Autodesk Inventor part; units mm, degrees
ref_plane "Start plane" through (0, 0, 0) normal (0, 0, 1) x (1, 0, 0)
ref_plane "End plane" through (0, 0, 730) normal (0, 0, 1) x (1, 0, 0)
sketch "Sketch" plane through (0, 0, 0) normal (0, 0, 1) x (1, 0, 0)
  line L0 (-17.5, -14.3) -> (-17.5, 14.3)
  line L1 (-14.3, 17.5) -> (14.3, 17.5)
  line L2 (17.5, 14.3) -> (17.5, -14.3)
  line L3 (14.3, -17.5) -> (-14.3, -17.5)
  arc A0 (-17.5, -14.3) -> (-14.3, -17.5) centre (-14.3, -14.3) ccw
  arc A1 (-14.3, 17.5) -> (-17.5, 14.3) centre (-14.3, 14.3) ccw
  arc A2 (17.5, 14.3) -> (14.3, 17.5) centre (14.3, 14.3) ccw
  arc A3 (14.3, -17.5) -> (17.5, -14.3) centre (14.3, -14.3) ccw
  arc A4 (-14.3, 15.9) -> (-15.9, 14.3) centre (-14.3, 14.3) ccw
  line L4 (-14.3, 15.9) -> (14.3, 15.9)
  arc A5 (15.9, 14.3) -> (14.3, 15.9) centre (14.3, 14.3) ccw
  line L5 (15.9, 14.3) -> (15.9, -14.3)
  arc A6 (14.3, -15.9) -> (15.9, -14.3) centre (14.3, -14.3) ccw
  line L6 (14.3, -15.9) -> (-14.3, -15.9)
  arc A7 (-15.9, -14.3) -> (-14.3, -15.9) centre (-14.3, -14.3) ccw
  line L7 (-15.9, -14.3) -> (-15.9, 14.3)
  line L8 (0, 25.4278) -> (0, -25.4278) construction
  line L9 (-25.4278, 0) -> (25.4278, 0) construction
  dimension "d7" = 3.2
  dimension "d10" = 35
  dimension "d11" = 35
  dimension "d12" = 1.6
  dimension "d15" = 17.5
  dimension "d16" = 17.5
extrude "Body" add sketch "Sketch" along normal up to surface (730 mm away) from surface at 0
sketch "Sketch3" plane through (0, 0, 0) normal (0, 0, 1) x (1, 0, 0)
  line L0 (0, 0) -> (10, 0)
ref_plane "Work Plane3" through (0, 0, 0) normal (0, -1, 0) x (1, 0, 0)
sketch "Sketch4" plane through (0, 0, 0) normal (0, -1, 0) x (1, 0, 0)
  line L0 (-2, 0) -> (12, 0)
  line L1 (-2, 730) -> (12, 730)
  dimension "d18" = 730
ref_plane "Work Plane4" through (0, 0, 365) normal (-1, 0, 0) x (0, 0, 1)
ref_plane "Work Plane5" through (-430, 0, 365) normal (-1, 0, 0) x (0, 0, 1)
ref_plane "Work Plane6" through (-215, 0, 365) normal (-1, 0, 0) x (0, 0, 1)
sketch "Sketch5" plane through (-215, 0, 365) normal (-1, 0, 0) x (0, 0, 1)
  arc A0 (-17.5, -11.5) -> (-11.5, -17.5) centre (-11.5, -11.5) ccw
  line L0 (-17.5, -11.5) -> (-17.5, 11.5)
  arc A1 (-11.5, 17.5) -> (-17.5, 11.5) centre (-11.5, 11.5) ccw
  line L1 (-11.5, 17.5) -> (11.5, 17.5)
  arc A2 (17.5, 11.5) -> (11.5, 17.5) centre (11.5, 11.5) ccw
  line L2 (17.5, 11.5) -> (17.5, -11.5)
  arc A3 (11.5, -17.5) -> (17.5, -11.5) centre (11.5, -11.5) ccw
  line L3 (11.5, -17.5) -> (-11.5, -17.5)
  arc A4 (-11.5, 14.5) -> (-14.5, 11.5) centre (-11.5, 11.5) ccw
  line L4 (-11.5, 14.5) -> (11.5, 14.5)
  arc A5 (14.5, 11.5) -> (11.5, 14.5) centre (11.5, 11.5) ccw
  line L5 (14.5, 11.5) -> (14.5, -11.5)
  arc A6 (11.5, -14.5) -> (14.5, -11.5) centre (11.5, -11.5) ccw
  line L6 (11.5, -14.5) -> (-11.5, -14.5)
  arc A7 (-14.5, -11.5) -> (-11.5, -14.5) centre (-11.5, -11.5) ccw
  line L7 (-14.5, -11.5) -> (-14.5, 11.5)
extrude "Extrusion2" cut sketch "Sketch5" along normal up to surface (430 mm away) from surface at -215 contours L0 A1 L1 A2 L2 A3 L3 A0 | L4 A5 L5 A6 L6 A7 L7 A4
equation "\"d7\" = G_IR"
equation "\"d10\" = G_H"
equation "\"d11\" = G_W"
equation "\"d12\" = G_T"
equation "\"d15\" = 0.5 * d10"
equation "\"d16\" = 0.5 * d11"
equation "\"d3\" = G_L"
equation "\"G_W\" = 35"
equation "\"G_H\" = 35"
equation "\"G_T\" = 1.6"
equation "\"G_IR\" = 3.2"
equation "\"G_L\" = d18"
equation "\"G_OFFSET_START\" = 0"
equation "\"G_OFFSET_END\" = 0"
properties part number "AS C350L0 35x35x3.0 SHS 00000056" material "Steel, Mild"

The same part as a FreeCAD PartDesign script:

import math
import FreeCAD as App
import Part
import Sketcher
Q = App.Units.Quantity

doc = App.newDocument("Part")
body = doc.addObject("PartDesign::Body", "Body")

sketch1 = doc.addObject("Sketcher::SketchObject", "Sketch")
body.addObject(sketch1)
sketch1.AttachmentSupport = (doc.XY_Plane, [""])
sketch1.MapMode = "FlatFace"
sketch1.addGeometry(Part.LineSegment(App.Vector(-17.5, 14.3, 0), App.Vector(-17.5, -14.3, 0)), False)
sketch1.addGeometry(Part.ArcOfCircle(Part.Circle(App.Vector(-14.3, -14.3, 0), App.Vector(0, 0, 1), 3.2), math.radians(180), math.radians(270)), False)
sketch1.addGeometry(Part.LineSegment(App.Vector(-14.3, -17.5, 0), App.Vector(14.3, -17.5, 0)), False)
sketch1.addGeometry(Part.ArcOfCircle(Part.Circle(App.Vector(14.3, -14.3, 0), App.Vector(0, 0, 1), 3.2), math.radians(-90), math.radians(0)), False)
sketch1.addGeometry(Part.LineSegment(App.Vector(17.5, -14.3, 0), App.Vector(17.5, 14.3, 0)), False)
sketch1.addGeometry(Part.ArcOfCircle(Part.Circle(App.Vector(14.3, 14.3, 0), App.Vector(0, 0, 1), 3.2), math.radians(0), math.radians(90)), False)
sketch1.addGeometry(Part.LineSegment(App.Vector(14.3, 17.5, 0), App.Vector(-14.3, 17.5, 0)), False)
sketch1.addGeometry(Part.ArcOfCircle(Part.Circle(App.Vector(-14.3, 14.3, 0), App.Vector(0, 0, 1), 3.2), math.radians(90), math.radians(180)), False)
sketch1.addGeometry(Part.ArcOfCircle(Part.Circle(App.Vector(-14.3, 14.3, 0), App.Vector(0, 0, 1), 1.6), math.radians(90), math.radians(180)), False)
sketch1.addGeometry(Part.LineSegment(App.Vector(-14.3, 15.9, 0), App.Vector(14.3, 15.9, 0)), False)
sketch1.addGeometry(Part.ArcOfCircle(Part.Circle(App.Vector(14.3, 14.3, 0), App.Vector(0, 0, 1), 1.6), math.radians(0), math.radians(90)), False)
sketch1.addGeometry(Part.LineSegment(App.Vector(15.9, 14.3, 0), App.Vector(15.9, -14.3, 0)), False)
sketch1.addGeometry(Part.ArcOfCircle(Part.Circle(App.Vector(14.3, -14.3, 0), App.Vector(0, 0, 1), 1.6), math.radians(-90), math.radians(0)), False)
sketch1.addGeometry(Part.LineSegment(App.Vector(14.3, -15.9, 0), App.Vector(-14.3, -15.9, 0)), False)
sketch1.addGeometry(Part.ArcOfCircle(Part.Circle(App.Vector(-14.3, -14.3, 0), App.Vector(0, 0, 1), 1.6), math.radians(180), math.radians(270)), False)
sketch1.addGeometry(Part.LineSegment(App.Vector(-15.9, -14.3, 0), App.Vector(-15.9, 14.3, 0)), False)
sketch1.addConstraint(Sketcher.Constraint("Tangent", 0, 2, 1, 1))
sketch1.addConstraint(Sketcher.Constraint("Tangent", 1, 2, 2, 1))
sketch1.addConstraint(Sketcher.Constraint("Tangent", 2, 2, 3, 1))
sketch1.addConstraint(Sketcher.Constraint("Tangent", 3, 2, 4, 1))
sketch1.addConstraint(Sketcher.Constraint("Tangent", 4, 2, 5, 1))
sketch1.addConstraint(Sketcher.Constraint("Tangent", 5, 2, 6, 1))
sketch1.addConstraint(Sketcher.Constraint("Tangent", 6, 2, 7, 1))
sketch1.addConstraint(Sketcher.Constraint("Tangent", 7, 2, 0, 1))
sketch1.addConstraint(Sketcher.Constraint("Tangent", 8, 1, 9, 1))
sketch1.addConstraint(Sketcher.Constraint("Tangent", 9, 2, 10, 2))
sketch1.addConstraint(Sketcher.Constraint("Tangent", 10, 1, 11, 1))
sketch1.addConstraint(Sketcher.Constraint("Tangent", 11, 2, 12, 2))
sketch1.addConstraint(Sketcher.Constraint("Tangent", 12, 1, 13, 1))
sketch1.addConstraint(Sketcher.Constraint("Tangent", 13, 2, 14, 2))
sketch1.addConstraint(Sketcher.Constraint("Tangent", 14, 1, 15, 1))
sketch1.addConstraint(Sketcher.Constraint("Tangent", 15, 2, 8, 2))
sketch1.addConstraint(Sketcher.Constraint("Vertical", 0))
sketch1.addConstraint(Sketcher.Constraint("Horizontal", 2))
sketch1.addConstraint(Sketcher.Constraint("Vertical", 4))
sketch1.addConstraint(Sketcher.Constraint("Horizontal", 6))
sketch1.addConstraint(Sketcher.Constraint("Horizontal", 9))
sketch1.addConstraint(Sketcher.Constraint("Vertical", 11))
sketch1.addConstraint(Sketcher.Constraint("Horizontal", 13))
sketch1.addConstraint(Sketcher.Constraint("Vertical", 15))
sketch1.addConstraint(Sketcher.Constraint("Coincident", 8, 3, 7, 3))
sketch1.addConstraint(Sketcher.Constraint("Coincident", 10, 3, 5, 3))
sketch1.addConstraint(Sketcher.Constraint("Coincident", 12, 3, 3, 3))
sketch1.addConstraint(Sketcher.Constraint("Equal", 1, 3))
sketch1.addConstraint(Sketcher.Constraint("Equal", 3, 5))
sketch1.addConstraint(Sketcher.Constraint("Equal", 5, 7))
sketch1.addConstraint(Sketcher.Constraint("Equal", 12, 14))
sketch1.addConstraint(Sketcher.Constraint("Symmetric", 1, 3, 5, 3, -1, 1))
sketch1.addConstraint(Sketcher.Constraint("Equal", 13, 0))
sketch1.addConstraint(Sketcher.Constraint("Radius", 1, Q("3.2 mm")))
sketch1.addConstraint(Sketcher.Constraint("Radius", 8, Q("1.6 mm")))
sketch1.addConstraint(Sketcher.Constraint("DistanceX", 0, 2, -1, 1, Q("17.5 mm")))
pad1 = doc.addObject("PartDesign::Pad", "Pad")
body.addObject(pad1)
pad1.Profile = sketch1
pad1.Length = 730

sketch2 = doc.addObject("Sketcher::SketchObject", "Sketch001")
body.addObject(sketch2)
sketch2.AttachmentSupport = (doc.YZ_Plane, [""])
sketch2.MapMode = "FlatFace"
sketch2.addGeometry(Part.LineSegment(App.Vector(12, 348, 0), App.Vector(-12, 348, 0)), False)
sketch2.addGeometry(Part.ArcOfCircle(Part.Circle(App.Vector(-12, 354, 0), App.Vector(0, 0, 1), 6), math.radians(180), math.radians(270)), False)
sketch2.addGeometry(Part.LineSegment(App.Vector(-18, 354, 0), App.Vector(-18, 376, 0)), False)
sketch2.addGeometry(Part.ArcOfCircle(Part.Circle(App.Vector(-12, 376, 0), App.Vector(0, 0, 1), 6), math.radians(90), math.radians(180)), False)
sketch2.addGeometry(Part.LineSegment(App.Vector(-12, 382, 0), App.Vector(12, 382, 0)), False)
sketch2.addGeometry(Part.ArcOfCircle(Part.Circle(App.Vector(12, 376, 0), App.Vector(0, 0, 1), 6), math.radians(0), math.radians(90)), False)
sketch2.addGeometry(Part.LineSegment(App.Vector(18, 376, 0), App.Vector(18, 354, 0)), False)
sketch2.addGeometry(Part.ArcOfCircle(Part.Circle(App.Vector(12, 354, 0), App.Vector(0, 0, 1), 6), math.radians(-90), math.radians(0)), False)
sketch2.addConstraint(Sketcher.Constraint("Tangent", 0, 2, 1, 2))
sketch2.addConstraint(Sketcher.Constraint("Tangent", 1, 1, 2, 1))
sketch2.addConstraint(Sketcher.Constraint("Tangent", 2, 2, 3, 2))
sketch2.addConstraint(Sketcher.Constraint("Tangent", 3, 1, 4, 1))
sketch2.addConstraint(Sketcher.Constraint("Tangent", 4, 2, 5, 2))
sketch2.addConstraint(Sketcher.Constraint("Tangent", 5, 1, 6, 1))
sketch2.addConstraint(Sketcher.Constraint("Tangent", 6, 2, 7, 2))
sketch2.addConstraint(Sketcher.Constraint("Tangent", 7, 1, 0, 1))
sketch2.addConstraint(Sketcher.Constraint("Horizontal", 0))
sketch2.addConstraint(Sketcher.Constraint("Vertical", 2))
sketch2.addConstraint(Sketcher.Constraint("Horizontal", 4))
sketch2.addConstraint(Sketcher.Constraint("Vertical", 6))
sketch2.addConstraint(Sketcher.Constraint("Equal", 1, 3))
sketch2.addConstraint(Sketcher.Constraint("Equal", 3, 5))
sketch2.addConstraint(Sketcher.Constraint("Equal", 5, 7))
sketch2.addConstraint(Sketcher.Constraint("Equal", 4, 2))
sketch2.addConstraint(Sketcher.Constraint("Radius", 1, Q("6 mm")))
sketch2.addConstraint(Sketcher.Constraint("DistanceX", 0, 2, 0, 1, Q("23 mm")))
sketch2.addConstraint(Sketcher.Constraint("DistanceX", 1, 3, -1, 1, Q("11.5 mm")))
sketch2.addConstraint(Sketcher.Constraint("DistanceY", -1, 1, 1, 3, Q("353.5 mm")))
pocket1 = doc.addObject("PartDesign::Pocket", "Pocket")
body.addObject(pocket1)
pocket1.Profile = sketch2
pocket1.Length = 430

doc.recompute()
